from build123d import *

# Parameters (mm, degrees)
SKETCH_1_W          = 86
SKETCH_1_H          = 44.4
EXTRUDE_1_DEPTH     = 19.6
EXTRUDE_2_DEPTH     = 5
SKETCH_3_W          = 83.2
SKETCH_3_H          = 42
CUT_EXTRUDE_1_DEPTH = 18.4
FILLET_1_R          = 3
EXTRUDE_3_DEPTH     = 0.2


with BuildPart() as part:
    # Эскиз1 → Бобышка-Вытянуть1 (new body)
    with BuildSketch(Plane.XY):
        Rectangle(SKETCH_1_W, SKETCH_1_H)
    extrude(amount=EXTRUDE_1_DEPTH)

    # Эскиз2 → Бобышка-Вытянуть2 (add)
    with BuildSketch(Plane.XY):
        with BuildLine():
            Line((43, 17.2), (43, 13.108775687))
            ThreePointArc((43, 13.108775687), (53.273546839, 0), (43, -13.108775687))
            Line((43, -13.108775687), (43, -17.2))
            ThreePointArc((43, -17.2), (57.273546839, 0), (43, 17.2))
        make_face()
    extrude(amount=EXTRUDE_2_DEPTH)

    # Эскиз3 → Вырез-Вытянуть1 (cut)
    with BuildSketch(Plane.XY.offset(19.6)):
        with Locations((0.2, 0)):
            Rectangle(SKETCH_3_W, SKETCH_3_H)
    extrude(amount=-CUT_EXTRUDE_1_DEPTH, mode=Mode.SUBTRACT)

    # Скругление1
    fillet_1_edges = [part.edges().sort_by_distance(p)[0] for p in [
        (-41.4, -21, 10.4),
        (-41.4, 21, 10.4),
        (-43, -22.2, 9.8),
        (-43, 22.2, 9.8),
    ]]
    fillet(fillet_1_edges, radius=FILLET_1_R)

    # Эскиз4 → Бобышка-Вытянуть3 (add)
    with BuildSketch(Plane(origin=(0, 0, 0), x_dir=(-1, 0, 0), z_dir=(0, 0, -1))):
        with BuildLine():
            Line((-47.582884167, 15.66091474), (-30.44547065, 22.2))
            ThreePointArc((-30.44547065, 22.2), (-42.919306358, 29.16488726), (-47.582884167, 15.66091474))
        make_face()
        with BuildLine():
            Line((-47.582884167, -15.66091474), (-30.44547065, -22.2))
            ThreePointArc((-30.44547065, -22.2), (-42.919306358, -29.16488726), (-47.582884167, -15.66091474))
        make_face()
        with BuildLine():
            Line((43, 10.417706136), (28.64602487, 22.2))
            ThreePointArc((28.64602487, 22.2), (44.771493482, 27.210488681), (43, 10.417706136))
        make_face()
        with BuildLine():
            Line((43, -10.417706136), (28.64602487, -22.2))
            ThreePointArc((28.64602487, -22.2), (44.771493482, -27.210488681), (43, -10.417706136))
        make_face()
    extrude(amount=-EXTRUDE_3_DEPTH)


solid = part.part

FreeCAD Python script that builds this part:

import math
import FreeCAD as App
import Part
import Sketcher

V = App.Vector
Q = App.Units.Quantity


def edges_at(feature, points):
    """Names of the edges that pass closest to the given points."""
    edges = feature.Shape.Edges
    near = lambda p: min(range(len(edges)), key=lambda i: edges[i].distToShape(Part.Vertex(*p))[0])
    return sorted({f"Edge{near(p) + 1}" for p in points})


def add_polygon(sketch, points):
    """Adds a closed chain of lines whose ends are joined by coincident constraints."""
    first, n = sketch.GeometryCount, len(points)
    for a, b in zip(points, points[1:] + points[:1]):
        sketch.addGeometry(Part.LineSegment(App.Vector(*a, 0), App.Vector(*b, 0)), False)
    for i in range(n):
        sketch.addConstraint(Sketcher.Constraint("Coincident", first + i, 2, first + (i + 1) % n, 1))

doc = App.newDocument("Part")
params = doc.addObject("Spreadsheet::Sheet", "Params")
for row, (alias, value) in enumerate([
    ("sketch1_width", "86 mm"),
    ("sketch1_height", "44.4 mm"),
    ("pad1_length", "19.6 mm"),
    ("sketch2_radius", "13.5 mm"),
    ("sketch2_radius2", "17.5 mm"),
    ("pad2_length", "5 mm"),
    ("sketch3_height", "42 mm"),
    ("sketch3_width", "83.2 mm"),
    ("pocket1_length", "18.4 mm"),
    ("fillet_radius", "3 mm"),
    ("pad3_length", "0.2 mm"),
], start=1):
    params.set(f"A{row}", alias)
    params.set(f"B{row}", "=" + value)
    params.setAlias(f"B{row}", alias)

body = doc.addObject("PartDesign::Body", "Body")

# Sketch on XY plane
sketch1 = doc.addObject("Sketcher::SketchObject", "Sketch")
body.addObject(sketch1)
sketch1.AttachmentSupport = (doc.XY_Plane, [""])
sketch1.MapMode = "FlatFace"
add_polygon(sketch1, [(-43, 22), (-43, -22), (43, -22), (43, 22)])  # lines 0-3
sketch1.addConstraint(Sketcher.Constraint("Vertical", 0))
sketch1.addConstraint(Sketcher.Constraint("Horizontal", 1))
sketch1.addConstraint(Sketcher.Constraint("Vertical", 2))
sketch1.addConstraint(Sketcher.Constraint("Horizontal", 3))
sketch1.addConstraint(Sketcher.Constraint("Symmetric", 0, 2, 2, 2, -1, 1))
sketch1.addConstraint(Sketcher.Constraint("DistanceX", 1, 1, 1, 2, Q("86 mm")))
sketch1.addConstraint(Sketcher.Constraint("DistanceY", 0, 2, 0, 1, Q("44.4 mm")))
sketch1.setExpression("Constraints[9]", "Params.sketch1_width")
sketch1.setExpression("Constraints[10]", "Params.sketch1_height")
pad1 = doc.addObject("PartDesign::Pad", "Pad")
body.addObject(pad1)
pad1.Profile = sketch1
pad1.setExpression("Length", "Params.pad1_length")

# Sketch on XY plane
sketch2 = doc.addObject("Sketcher::SketchObject", "Sketch001")
body.addObject(sketch2)
sketch2.AttachmentSupport = (doc.XY_Plane, [""])
sketch2.MapMode = "FlatFace"
sketch2.addGeometry(Part.LineSegment(V(43, 17.2, 0), V(43, 13.1, 0)), False)
sketch2.addGeometry(Part.ArcOfCircle(Part.Circle(V(39.8, 0, 0), V(0, 0, 1), 13.5), math.radians(-76), math.radians(76)), False)
sketch2.addGeometry(Part.LineSegment(V(43, -13.1, 0), V(43, -17.2, 0)), False)
sketch2.addGeometry(Part.ArcOfCircle(Part.Circle(V(39.8, 0, 0), V(0, 0, 1), 17.5), math.radians(-79), math.radians(79)), False)
sketch2.addConstraint(Sketcher.Constraint("Coincident", 0, 2, 1, 2))
sketch2.addConstraint(Sketcher.Constraint("Coincident", 1, 1, 2, 1))
sketch2.addConstraint(Sketcher.Constraint("Coincident", 2, 2, 3, 1))
sketch2.addConstraint(Sketcher.Constraint("Coincident", 3, 2, 0, 1))
sketch2.addConstraint(Sketcher.Constraint("Vertical", 0))
sketch2.addConstraint(Sketcher.Constraint("Vertical", 2))
sketch2.addConstraint(Sketcher.Constraint("Coincident", 3, 3, 1, 3))
sketch2.addConstraint(Sketcher.Constraint("Symmetric", 0, 2, 1, 1, -1))
sketch2.addConstraint(Sketcher.Constraint("Radius", 1, Q("13.5 mm")))
sketch2.addConstraint(Sketcher.Constraint("Radius", 3, Q("17.5 mm")))
sketch2.addConstraint(Sketcher.Constraint("DistanceX", -1, 1, 0, 2, Q("43 mm")))
sketch2.addConstraint(Sketcher.Constraint("DistanceY", 2, 2, -1, 1, Q("17.2 mm")))
sketch2.setExpression("Constraints[8]", "Params.sketch2_radius")
sketch2.setExpression("Constraints[9]", "Params.sketch2_radius2")
pad2 = doc.addObject("PartDesign::Pad", "Pad001")
body.addObject(pad2)
pad2.Profile = sketch2
pad2.setExpression("Length", "Params.pad2_length")

# Sketch on XY plane
sketch3 = doc.addObject("Sketcher::SketchObject", "Sketch002")
body.addObject(sketch3)
sketch3.AttachmentSupport = (doc.XY_Plane, [""])
sketch3.MapMode = "FlatFace"
sketch3.AttachmentOffset = App.Placement(V(0, 0, 19.6), App.Rotation())
add_polygon(sketch3, [(-41, 21), (-41, -21), (42, -21), (42, 21)])  # lines 0-3
sketch3.addConstraint(Sketcher.Constraint("Vertical", 0))
sketch3.addConstraint(Sketcher.Constraint("Horizontal", 1))
sketch3.addConstraint(Sketcher.Constraint("Vertical", 2))
sketch3.addConstraint(Sketcher.Constraint("Horizontal", 3))
sketch3.addConstraint(Sketcher.Constraint("DistanceY", 0, 2, 0, 1, Q("42 mm")))
sketch3.addConstraint(Sketcher.Constraint("DistanceX", 1, 1, 1, 2, Q("83.2 mm")))
sketch3.addConstraint(Sketcher.Constraint("DistanceY", 0, 2, -1, 1, Q("21 mm")))
sketch3.addConstraint(Sketcher.Constraint("DistanceX", 0, 2, -1, 1, Q("41.4 mm")))
sketch3.setExpression("Constraints[8]", "Params.sketch3_height")
sketch3.setExpression("Constraints[9]", "Params.sketch3_width")
pocket1 = doc.addObject("PartDesign::Pocket", "Pocket")
body.addObject(pocket1)
pocket1.Profile = sketch3
pocket1.setExpression("Length", "Params.pocket1_length")
doc.recompute()

fillet = doc.addObject("PartDesign::Fillet", "Fillet")
body.addObject(fillet)
fillet.Base = (pocket1, edges_at(pocket1, [
    (-41.4, -21, 10.4),
    (-41.4, 21, 10.4),
    (-43, -22.2, 9.8),
    (-43, 22.2, 9.8),
]))
fillet.setExpression("Radius", "Params.fillet_radius")

# Sketch on XY plane
sketch4 = doc.addObject("Sketcher::SketchObject", "Sketch003")
body.addObject(sketch4)
sketch4.AttachmentSupport = (doc.XY_Plane, [""])
sketch4.MapMode = "FlatFace"
sketch4.addGeometry(Part.LineSegment(V(48, 16, 0), V(30, 22, 0)), False)
sketch4.addGeometry(Part.ArcOfCircle(Part.Circle(V(40, 20, 0), V(0, 0, 1), 9), math.radians(-31), math.radians(169)), False)
sketch4.addGeometry(Part.LineSegment(V(30, -22, 0), V(48, -16, 0)), False)
sketch4.addGeometry(Part.ArcOfCircle(Part.Circle(V(40, -20, 0), V(0, 0, 1), 9), math.radians(-169), math.radians(31)), False)
sketch4.addGeometry(Part.LineSegment(V(-29, 22, 0), V(-43, 10, 0)), False)
sketch4.addGeometry(Part.ArcOfCircle(Part.Circle(V(-38, 19, 0), V(0, 0, 1), 10), math.radians(16), math.radians(243)), False)
sketch4.addGeometry(Part.LineSegment(V(-43, -10, 0), V(-29, -22, 0)), False)
sketch4.addGeometry(Part.ArcOfCircle(Part.Circle(V(-38, -19, 0), V(0, 0, 1), 10), math.radians(117), math.radians(344)), False)
sketch4.addConstraint(Sketcher.Constraint("Coincident", 0, 1, 1, 1))
sketch4.addConstraint(Sketcher.Constraint("Coincident", 1, 2, 0, 2))
sketch4.addConstraint(Sketcher.Constraint("Coincident", 2, 1, 3, 1))
sketch4.addConstraint(Sketcher.Constraint("Coincident", 3, 2, 2, 2))
sketch4.addConstraint(Sketcher.Constraint("Coincident", 4, 1, 5, 1))
sketch4.addConstraint(Sketcher.Constraint("Coincident", 5, 2, 4, 2))
sketch4.addConstraint(Sketcher.Constraint("Coincident", 6, 1, 7, 1))
sketch4.addConstraint(Sketcher.Constraint("Coincident", 7, 2, 6, 2))
sketch4.addConstraint(Sketcher.Constraint("Equal", 1, 3))
sketch4.addConstraint(Sketcher.Constraint("Equal", 5, 7))
sketch4.addConstraint(Sketcher.Constraint("Symmetric", 1, 3, 3, 3, -1))
sketch4.addConstraint(Sketcher.Constraint("Symmetric", 5, 3, 7, 3, -1))
sketch4.addConstraint(Sketcher.Constraint("Horizontal", 1, 2, 4, 1))
sketch4.addConstraint(Sketcher.Constraint("Horizontal", 2, 1, 7, 2))
sketch4.addConstraint(Sketcher.Constraint("Vertical", 1, 2, 2, 1))
sketch4.addConstraint(Sketcher.Constraint("Vertical", 0, 1, 3, 2))
sketch4.addConstraint(Sketcher.Constraint("Vertical", 5, 2, 6, 1))
sketch4.addConstraint(Sketcher.Constraint("DistanceX", 5, 2, -1, 1, Q("43 mm")))
sketch4.addConstraint(Sketcher.Constraint("DistanceY", -1, 1, 1, 2, Q("22.2 mm")))
sketch4.addConstraint(Sketcher.Constraint("Radius", 1, Q("9.316381 mm")))
sketch4.addConstraint(Sketcher.Constraint("Radius", 5, Q("10.108376 mm")))
sketch4.addConstraint(Sketcher.Constraint("Distance", 0, Q("18.342589 mm")))
sketch4.addConstraint(Sketcher.Constraint("Distance", 4, Q("18.570381 mm")))
sketch4.addConstraint(Sketcher.Constraint("DistanceX", -1, 1, 1, 3, Q("39.598041 mm")))
sketch4.addConstraint(Sketcher.Constraint("DistanceY", -1, 1, 5, 3, Q("19.39722 mm")))
sketch4.addConstraint(Sketcher.Constraint("DistanceX", -1, 1, 1, 2, Q("30.445471 mm")))
pad3 = doc.addObject("PartDesign::Pad", "Pad002")
body.addObject(pad3)
pad3.Profile = sketch4
pad3.setExpression("Length", "Params.pad3_length")

doc.recompute()
